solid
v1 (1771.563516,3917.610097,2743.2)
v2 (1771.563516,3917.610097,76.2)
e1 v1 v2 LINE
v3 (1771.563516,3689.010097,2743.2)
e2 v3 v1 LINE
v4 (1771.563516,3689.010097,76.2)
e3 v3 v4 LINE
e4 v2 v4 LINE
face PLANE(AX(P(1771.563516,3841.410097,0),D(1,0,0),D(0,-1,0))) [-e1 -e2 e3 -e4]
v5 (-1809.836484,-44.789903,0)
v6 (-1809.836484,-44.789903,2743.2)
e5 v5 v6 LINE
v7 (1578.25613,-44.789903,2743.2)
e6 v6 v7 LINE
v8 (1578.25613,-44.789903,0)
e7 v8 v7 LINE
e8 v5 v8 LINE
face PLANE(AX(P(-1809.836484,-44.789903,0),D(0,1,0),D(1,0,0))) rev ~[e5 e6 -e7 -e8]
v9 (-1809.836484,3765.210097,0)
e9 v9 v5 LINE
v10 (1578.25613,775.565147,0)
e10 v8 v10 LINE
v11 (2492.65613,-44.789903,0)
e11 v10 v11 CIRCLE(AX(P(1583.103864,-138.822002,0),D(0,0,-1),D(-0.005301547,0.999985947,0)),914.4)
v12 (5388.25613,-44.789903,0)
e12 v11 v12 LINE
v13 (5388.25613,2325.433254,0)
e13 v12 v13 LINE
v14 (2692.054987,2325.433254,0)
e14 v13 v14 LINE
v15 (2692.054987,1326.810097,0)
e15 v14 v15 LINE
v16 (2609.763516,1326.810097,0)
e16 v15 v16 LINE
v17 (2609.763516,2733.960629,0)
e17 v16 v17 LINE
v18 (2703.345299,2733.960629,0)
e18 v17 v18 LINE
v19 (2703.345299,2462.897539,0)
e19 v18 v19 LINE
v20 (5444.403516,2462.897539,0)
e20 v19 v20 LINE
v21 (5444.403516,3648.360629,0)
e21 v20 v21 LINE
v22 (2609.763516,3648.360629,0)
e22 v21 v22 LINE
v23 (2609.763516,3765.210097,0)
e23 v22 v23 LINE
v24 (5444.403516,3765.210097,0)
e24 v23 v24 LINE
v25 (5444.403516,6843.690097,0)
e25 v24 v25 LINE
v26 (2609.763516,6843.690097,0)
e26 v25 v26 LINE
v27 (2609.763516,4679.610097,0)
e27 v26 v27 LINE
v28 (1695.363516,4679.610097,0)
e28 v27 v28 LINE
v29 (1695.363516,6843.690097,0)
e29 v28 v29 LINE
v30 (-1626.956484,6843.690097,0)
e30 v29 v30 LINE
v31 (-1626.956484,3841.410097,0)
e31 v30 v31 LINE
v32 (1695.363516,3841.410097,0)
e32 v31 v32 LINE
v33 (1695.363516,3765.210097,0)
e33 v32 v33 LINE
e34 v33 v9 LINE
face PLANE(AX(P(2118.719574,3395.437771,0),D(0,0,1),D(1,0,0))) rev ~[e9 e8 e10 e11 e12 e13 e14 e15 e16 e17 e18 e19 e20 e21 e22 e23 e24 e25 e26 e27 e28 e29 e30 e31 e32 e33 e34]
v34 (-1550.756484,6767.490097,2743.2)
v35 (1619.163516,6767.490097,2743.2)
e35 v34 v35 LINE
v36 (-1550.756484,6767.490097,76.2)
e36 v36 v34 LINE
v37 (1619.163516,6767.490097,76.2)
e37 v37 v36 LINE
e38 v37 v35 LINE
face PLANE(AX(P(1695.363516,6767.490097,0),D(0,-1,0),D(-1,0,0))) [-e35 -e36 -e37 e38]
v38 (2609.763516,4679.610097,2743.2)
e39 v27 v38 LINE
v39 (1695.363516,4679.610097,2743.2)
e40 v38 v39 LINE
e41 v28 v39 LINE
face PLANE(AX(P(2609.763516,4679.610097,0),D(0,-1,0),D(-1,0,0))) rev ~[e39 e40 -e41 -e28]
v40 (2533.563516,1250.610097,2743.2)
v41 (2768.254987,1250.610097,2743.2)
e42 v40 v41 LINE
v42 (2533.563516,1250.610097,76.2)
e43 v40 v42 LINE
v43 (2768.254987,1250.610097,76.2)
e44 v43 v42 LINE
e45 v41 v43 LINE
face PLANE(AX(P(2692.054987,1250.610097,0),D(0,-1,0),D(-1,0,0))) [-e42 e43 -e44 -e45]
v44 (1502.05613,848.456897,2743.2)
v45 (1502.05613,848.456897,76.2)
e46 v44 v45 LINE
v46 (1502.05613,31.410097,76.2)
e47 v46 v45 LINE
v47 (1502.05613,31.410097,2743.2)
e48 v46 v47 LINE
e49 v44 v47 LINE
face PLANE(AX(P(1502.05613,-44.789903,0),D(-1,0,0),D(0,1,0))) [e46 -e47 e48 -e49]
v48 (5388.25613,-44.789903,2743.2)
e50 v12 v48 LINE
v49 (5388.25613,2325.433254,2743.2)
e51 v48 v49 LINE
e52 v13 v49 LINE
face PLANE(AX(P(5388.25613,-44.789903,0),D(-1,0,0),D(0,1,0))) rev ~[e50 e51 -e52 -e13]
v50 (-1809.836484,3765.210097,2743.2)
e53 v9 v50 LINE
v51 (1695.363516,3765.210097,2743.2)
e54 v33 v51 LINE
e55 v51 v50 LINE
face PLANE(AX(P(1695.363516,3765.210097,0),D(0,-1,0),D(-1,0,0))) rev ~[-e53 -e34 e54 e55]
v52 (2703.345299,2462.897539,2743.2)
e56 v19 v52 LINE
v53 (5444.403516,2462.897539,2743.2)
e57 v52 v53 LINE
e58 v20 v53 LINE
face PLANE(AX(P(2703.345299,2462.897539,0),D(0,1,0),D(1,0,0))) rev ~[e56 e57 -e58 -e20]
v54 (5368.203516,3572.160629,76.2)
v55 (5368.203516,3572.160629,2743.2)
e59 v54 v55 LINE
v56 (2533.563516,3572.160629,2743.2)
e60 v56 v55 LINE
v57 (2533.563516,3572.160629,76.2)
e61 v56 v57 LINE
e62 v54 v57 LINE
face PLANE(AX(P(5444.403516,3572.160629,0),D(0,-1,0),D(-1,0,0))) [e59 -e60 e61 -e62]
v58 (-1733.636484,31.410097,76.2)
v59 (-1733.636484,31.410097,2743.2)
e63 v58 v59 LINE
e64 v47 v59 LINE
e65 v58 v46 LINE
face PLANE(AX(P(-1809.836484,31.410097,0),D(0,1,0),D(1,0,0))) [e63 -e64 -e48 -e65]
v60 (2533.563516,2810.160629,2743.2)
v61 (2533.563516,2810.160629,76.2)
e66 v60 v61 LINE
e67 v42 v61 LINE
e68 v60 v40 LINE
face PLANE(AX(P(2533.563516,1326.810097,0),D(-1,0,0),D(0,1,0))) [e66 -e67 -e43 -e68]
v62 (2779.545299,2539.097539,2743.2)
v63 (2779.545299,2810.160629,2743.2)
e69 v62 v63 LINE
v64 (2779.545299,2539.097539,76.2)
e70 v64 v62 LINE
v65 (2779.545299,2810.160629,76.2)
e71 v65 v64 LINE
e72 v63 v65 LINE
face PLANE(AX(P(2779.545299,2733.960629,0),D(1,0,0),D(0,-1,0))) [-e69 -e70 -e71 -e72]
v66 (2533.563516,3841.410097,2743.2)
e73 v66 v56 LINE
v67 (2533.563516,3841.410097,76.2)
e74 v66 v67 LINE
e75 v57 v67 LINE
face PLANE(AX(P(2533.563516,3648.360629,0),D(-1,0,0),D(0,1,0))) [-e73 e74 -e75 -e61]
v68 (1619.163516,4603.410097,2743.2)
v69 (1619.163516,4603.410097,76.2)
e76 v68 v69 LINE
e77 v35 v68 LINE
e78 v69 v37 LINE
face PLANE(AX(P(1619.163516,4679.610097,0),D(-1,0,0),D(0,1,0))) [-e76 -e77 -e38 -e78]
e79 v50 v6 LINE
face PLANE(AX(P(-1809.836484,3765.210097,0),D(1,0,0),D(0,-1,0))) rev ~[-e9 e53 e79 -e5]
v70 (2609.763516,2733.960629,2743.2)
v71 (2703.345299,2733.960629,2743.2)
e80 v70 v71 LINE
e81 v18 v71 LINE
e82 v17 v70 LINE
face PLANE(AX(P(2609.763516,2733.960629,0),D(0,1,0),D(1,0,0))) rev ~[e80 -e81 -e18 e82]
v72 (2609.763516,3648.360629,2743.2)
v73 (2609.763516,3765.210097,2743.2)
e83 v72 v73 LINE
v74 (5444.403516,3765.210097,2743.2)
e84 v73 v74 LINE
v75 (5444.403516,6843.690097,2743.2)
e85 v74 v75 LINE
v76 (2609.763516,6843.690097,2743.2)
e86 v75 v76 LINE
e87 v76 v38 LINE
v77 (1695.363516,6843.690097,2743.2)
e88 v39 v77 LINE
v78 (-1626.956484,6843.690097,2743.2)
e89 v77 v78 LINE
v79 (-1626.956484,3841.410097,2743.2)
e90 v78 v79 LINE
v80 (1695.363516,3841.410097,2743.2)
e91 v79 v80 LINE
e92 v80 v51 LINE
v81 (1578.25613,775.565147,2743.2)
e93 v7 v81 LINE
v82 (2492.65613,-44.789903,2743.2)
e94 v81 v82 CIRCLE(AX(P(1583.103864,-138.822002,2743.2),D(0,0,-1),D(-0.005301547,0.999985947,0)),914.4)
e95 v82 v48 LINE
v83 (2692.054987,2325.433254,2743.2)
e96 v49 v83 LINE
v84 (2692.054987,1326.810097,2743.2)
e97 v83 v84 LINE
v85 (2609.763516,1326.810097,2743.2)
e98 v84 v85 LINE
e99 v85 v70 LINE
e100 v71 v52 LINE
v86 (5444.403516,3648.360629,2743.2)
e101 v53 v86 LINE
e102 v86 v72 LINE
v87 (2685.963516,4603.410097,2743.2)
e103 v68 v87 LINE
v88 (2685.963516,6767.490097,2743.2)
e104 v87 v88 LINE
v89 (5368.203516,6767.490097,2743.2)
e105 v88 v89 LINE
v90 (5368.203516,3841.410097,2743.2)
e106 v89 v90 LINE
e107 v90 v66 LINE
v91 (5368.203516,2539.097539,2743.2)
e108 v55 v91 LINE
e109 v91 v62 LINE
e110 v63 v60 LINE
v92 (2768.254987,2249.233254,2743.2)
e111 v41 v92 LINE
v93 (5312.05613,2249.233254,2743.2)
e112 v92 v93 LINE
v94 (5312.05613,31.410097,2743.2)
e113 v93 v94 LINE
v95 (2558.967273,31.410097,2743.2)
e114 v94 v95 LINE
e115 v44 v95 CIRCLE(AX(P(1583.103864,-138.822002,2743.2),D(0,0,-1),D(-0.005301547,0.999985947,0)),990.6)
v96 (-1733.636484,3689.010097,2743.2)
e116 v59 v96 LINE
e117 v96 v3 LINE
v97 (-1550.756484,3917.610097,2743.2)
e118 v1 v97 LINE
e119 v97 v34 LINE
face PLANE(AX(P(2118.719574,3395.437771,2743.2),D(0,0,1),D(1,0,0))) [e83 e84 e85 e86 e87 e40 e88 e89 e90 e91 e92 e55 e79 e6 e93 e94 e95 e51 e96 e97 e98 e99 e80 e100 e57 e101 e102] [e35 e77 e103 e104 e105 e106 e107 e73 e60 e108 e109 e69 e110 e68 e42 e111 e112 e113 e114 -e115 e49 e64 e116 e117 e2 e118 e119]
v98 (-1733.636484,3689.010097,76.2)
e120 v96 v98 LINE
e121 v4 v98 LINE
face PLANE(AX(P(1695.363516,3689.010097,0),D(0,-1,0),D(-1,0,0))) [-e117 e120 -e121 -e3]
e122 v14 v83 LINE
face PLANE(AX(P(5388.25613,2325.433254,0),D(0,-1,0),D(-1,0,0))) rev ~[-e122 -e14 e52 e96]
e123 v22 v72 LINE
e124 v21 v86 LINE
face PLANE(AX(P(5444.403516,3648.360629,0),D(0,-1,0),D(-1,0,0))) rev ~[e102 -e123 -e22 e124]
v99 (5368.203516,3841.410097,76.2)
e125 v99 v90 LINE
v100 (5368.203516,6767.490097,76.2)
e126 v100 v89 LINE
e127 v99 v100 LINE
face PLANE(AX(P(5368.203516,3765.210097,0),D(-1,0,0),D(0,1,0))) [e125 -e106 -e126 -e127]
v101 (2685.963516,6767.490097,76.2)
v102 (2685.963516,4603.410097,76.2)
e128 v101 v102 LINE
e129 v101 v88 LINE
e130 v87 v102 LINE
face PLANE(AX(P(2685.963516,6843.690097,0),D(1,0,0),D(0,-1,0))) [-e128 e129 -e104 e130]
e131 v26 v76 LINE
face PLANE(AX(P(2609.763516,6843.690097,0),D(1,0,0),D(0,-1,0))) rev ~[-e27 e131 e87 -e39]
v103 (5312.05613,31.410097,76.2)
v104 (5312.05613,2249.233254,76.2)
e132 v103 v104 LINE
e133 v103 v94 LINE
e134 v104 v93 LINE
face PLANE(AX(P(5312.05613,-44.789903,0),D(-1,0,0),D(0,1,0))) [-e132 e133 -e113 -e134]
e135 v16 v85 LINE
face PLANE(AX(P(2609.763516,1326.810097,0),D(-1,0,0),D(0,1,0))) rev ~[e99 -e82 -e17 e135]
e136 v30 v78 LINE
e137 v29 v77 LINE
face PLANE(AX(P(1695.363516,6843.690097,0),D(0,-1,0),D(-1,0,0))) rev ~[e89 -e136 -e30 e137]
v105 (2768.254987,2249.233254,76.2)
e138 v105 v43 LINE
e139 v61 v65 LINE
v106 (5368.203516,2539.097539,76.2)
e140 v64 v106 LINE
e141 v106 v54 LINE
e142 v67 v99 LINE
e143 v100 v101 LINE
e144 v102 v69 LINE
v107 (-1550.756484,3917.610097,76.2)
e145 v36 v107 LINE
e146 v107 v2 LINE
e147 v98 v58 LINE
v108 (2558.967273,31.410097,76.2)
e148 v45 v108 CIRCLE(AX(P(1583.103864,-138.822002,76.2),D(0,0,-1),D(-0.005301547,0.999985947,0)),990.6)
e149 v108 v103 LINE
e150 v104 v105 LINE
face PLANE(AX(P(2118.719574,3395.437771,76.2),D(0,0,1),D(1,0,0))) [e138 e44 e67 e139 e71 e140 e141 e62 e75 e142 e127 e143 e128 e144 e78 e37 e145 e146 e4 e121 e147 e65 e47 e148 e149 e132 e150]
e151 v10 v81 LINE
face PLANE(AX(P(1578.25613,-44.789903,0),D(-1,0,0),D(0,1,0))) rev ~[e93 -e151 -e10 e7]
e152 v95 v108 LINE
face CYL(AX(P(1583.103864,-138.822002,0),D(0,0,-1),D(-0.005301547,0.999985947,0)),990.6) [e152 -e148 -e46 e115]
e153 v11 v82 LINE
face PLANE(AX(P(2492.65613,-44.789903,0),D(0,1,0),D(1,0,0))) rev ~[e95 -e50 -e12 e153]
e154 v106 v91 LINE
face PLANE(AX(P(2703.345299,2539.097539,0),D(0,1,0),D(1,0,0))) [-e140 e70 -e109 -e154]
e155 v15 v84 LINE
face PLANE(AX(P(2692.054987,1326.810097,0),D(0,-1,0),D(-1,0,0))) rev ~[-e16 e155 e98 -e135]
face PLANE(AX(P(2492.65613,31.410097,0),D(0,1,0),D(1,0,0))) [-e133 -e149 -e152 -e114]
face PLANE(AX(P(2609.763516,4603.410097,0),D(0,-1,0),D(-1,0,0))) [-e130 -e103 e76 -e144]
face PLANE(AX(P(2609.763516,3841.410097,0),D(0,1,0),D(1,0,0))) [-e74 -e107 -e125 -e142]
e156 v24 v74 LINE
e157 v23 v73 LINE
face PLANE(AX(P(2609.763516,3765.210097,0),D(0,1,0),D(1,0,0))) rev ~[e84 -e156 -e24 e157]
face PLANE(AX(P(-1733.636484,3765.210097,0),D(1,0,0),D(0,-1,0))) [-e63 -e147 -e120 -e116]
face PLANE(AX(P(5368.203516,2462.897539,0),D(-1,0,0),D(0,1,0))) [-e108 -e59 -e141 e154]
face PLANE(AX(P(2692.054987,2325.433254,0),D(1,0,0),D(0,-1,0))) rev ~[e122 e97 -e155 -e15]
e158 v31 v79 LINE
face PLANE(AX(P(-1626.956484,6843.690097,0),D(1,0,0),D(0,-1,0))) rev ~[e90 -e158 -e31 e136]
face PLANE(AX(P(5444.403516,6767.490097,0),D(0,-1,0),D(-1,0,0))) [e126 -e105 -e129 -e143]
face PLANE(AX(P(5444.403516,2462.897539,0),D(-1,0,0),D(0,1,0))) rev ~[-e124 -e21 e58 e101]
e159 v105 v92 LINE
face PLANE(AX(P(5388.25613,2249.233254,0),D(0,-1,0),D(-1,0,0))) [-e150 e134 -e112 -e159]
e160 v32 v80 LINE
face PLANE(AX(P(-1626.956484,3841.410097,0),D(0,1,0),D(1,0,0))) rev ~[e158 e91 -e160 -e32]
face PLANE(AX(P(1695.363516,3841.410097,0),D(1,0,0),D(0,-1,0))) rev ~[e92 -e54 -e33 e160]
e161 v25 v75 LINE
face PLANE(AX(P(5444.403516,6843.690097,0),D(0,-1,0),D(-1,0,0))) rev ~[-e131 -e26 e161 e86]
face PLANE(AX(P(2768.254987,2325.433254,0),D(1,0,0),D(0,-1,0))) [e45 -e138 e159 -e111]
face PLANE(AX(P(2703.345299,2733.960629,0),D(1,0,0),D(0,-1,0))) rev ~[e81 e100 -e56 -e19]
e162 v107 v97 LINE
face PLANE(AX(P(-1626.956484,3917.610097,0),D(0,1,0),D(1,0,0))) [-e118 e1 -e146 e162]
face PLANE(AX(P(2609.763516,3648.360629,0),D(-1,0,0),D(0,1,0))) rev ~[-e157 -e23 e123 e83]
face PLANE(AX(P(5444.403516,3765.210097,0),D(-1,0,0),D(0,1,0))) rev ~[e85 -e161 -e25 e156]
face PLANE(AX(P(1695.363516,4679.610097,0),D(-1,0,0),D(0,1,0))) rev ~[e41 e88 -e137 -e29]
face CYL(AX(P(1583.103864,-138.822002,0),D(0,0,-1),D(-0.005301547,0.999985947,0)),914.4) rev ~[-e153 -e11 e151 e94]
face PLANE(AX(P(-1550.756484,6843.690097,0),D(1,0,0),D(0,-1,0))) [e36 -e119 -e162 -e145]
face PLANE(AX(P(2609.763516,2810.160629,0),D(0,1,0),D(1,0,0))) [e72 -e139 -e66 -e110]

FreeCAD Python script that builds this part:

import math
import FreeCAD as App
import Part
import Sketcher
Q = App.Units.Quantity


def faces_at(feature, points):
    """Names of the faces that lie closest to the given points."""
    faces = feature.Shape.Faces
    near = lambda p: min(range(len(faces)), key=lambda i: faces[i].distToShape(Part.Vertex(*p))[0])
    return sorted({f"Face{near(p) + 1}" for p in points})

doc = App.newDocument("Part")
body = doc.addObject("PartDesign::Body", "Body")

# Sketch on XY plane
sketch1 = body.newObject("Sketcher::SketchObject", "Sketch")
sketch1.AttachmentSupport = (doc.getObject("XY_Plane"), [""])
sketch1.MapMode = "FlatFace"
sketch1.addGeometry([
    Part.LineSegment(App.Vector(-1810, 3765, 0), App.Vector(-1810, -45, 0)),  # 0
    Part.LineSegment(App.Vector(-1810, -45, 0), App.Vector(1578, -45, 0)),  # 1
    Part.LineSegment(App.Vector(1578, -45, 0), App.Vector(1578, 776, 0)),  # 2
    Part.ArcOfCircle(Part.Circle(App.Vector(1583, -139, 0), App.Vector(0, 0, 1), 914), math.radians(6), math.radians(90)),  # 3
    Part.LineSegment(App.Vector(2493, -45, 0), App.Vector(5388, -45, 0)),  # 4
    Part.LineSegment(App.Vector(5388, -45, 0), App.Vector(5388, 2325, 0)),  # 5
    Part.LineSegment(App.Vector(5388, 2325, 0), App.Vector(2692, 2325, 0)),  # 6
    Part.LineSegment(App.Vector(2692, 2325, 0), App.Vector(2692, 1327, 0)),  # 7
    Part.LineSegment(App.Vector(2692, 1327, 0), App.Vector(2610, 1327, 0)),  # 8
    Part.LineSegment(App.Vector(2610, 1327, 0), App.Vector(2610, 2734, 0)),  # 9
    Part.LineSegment(App.Vector(2610, 2734, 0), App.Vector(2703, 2734, 0)),  # 10
    Part.LineSegment(App.Vector(2703, 2734, 0), App.Vector(2703, 2463, 0)),  # 11
    Part.LineSegment(App.Vector(2703, 2463, 0), App.Vector(5444, 2463, 0)),  # 12
    Part.LineSegment(App.Vector(5444, 2463, 0), App.Vector(5444, 3648, 0)),  # 13
    Part.LineSegment(App.Vector(5444, 3648, 0), App.Vector(2610, 3648, 0)),  # 14
    Part.LineSegment(App.Vector(2610, 3648, 0), App.Vector(2610, 3765, 0)),  # 15
    Part.LineSegment(App.Vector(2610, 3765, 0), App.Vector(5444, 3765, 0)),  # 16
    Part.LineSegment(App.Vector(5444, 3765, 0), App.Vector(5444, 6844, 0)),  # 17
    Part.LineSegment(App.Vector(5444, 6844, 0), App.Vector(2610, 6844, 0)),  # 18
    Part.LineSegment(App.Vector(2610, 6844, 0), App.Vector(2610, 4680, 0)),  # 19
    Part.LineSegment(App.Vector(2610, 4680, 0), App.Vector(1695, 4680, 0)),  # 20
    Part.LineSegment(App.Vector(1695, 4680, 0), App.Vector(1695, 6844, 0)),  # 21
    Part.LineSegment(App.Vector(1695, 6844, 0), App.Vector(-1627, 6844, 0)),  # 22
    Part.LineSegment(App.Vector(-1627, 6844, 0), App.Vector(-1627, 3841, 0)),  # 23
    Part.LineSegment(App.Vector(-1627, 3841, 0), App.Vector(1695, 3841, 0)),  # 24
    Part.LineSegment(App.Vector(1695, 3841, 0), App.Vector(1695, 3765, 0)),  # 25
    Part.LineSegment(App.Vector(1695, 3765, 0), App.Vector(-1810, 3765, 0)),  # 26
], False)
sketch1.addConstraint([
    Sketcher.Constraint("Coincident", 0, 2, 1, 1),
    Sketcher.Constraint("Coincident", 1, 2, 2, 1),
    Sketcher.Constraint("Coincident", 2, 2, 3, 2),
    Sketcher.Constraint("Coincident", 3, 1, 4, 1),
    Sketcher.Constraint("Coincident", 4, 2, 5, 1),
    Sketcher.Constraint("Coincident", 5, 2, 6, 1),
    Sketcher.Constraint("Coincident", 6, 2, 7, 1),
    Sketcher.Constraint("Coincident", 7, 2, 8, 1),
    Sketcher.Constraint("Coincident", 8, 2, 9, 1),
    Sketcher.Constraint("Coincident", 9, 2, 10, 1),
    Sketcher.Constraint("Coincident", 10, 2, 11, 1),
    Sketcher.Constraint("Coincident", 11, 2, 12, 1),
    Sketcher.Constraint("Coincident", 12, 2, 13, 1),
    Sketcher.Constraint("Coincident", 13, 2, 14, 1),
    Sketcher.Constraint("Coincident", 14, 2, 15, 1),
    Sketcher.Constraint("Coincident", 15, 2, 16, 1),
    Sketcher.Constraint("Coincident", 16, 2, 17, 1),
    Sketcher.Constraint("Coincident", 17, 2, 18, 1),
    Sketcher.Constraint("Coincident", 18, 2, 19, 1),
    Sketcher.Constraint("Coincident", 19, 2, 20, 1),
    Sketcher.Constraint("Coincident", 20, 2, 21, 1),
    Sketcher.Constraint("Coincident", 21, 2, 22, 1),
    Sketcher.Constraint("Coincident", 22, 2, 23, 1),
    Sketcher.Constraint("Coincident", 23, 2, 24, 1),
    Sketcher.Constraint("Coincident", 24, 2, 25, 1),
    Sketcher.Constraint("Coincident", 25, 2, 26, 1),
    Sketcher.Constraint("Coincident", 26, 2, 0, 1),
    Sketcher.Constraint("Vertical", 0),
    Sketcher.Constraint("Horizontal", 1),
    Sketcher.Constraint("Vertical", 2),
    Sketcher.Constraint("Horizontal", 4),
    Sketcher.Constraint("Vertical", 5),
    Sketcher.Constraint("Horizontal", 6),
    Sketcher.Constraint("Vertical", 7),
    Sketcher.Constraint("Horizontal", 8),
    Sketcher.Constraint("Vertical", 9),
    Sketcher.Constraint("Horizontal", 10),
    Sketcher.Constraint("Vertical", 11),
    Sketcher.Constraint("Horizontal", 12),
    Sketcher.Constraint("Vertical", 13),
    Sketcher.Constraint("Horizontal", 14),
    Sketcher.Constraint("Vertical", 15),
    Sketcher.Constraint("Horizontal", 16),
    Sketcher.Constraint("Vertical", 17),
    Sketcher.Constraint("Horizontal", 18),
    Sketcher.Constraint("Vertical", 19),
    Sketcher.Constraint("Horizontal", 20),
    Sketcher.Constraint("Vertical", 21),
    Sketcher.Constraint("Horizontal", 22),
    Sketcher.Constraint("Vertical", 23),
    Sketcher.Constraint("Horizontal", 24),
    Sketcher.Constraint("Vertical", 25),
    Sketcher.Constraint("Horizontal", 26),
    Sketcher.Constraint("Horizontal", 18, 2, 21, 2),
    Sketcher.Constraint("Horizontal", 16, 2, 25, 2),
    Sketcher.Constraint("Vertical", 9, 2, 14, 2),
    Sketcher.Constraint("Vertical", 13, 2, 16, 2),
    Sketcher.Constraint("Vertical", 15, 2, 18, 2),
    Sketcher.Constraint("Vertical", 21, 2, 24, 2),
    Sketcher.Constraint("Radius", 3, Q("36 in")),
    Sketcher.Constraint("DistanceX", 4, 1, 4, 2, Q("114 in")),
    Sketcher.Constraint("DistanceX", 20, 2, 20, 1, Q("36 in")),
    Sketcher.Constraint("DistanceX", 26, 2, 26, 1, Q("138 in")),
    Sketcher.Constraint("DistanceY", 0, 2, 0, 1, Q("150 in")),
    Sketcher.Constraint("DistanceY", 25, 2, 25, 1, Q("3 in")),
    Sketcher.Constraint("DistanceX", 14, 2, 14, 1, Q("111.6 in")),
    Sketcher.Constraint("DistanceX", 22, 2, 22, 1, Q("130.8 in")),
    Sketcher.Constraint("DistanceY", 17, 1, 17, 2, Q("121.2 in")),
    Sketcher.Constraint("DistanceY", 19, 2, 19, 1, Q("85.2 in")),
    Sketcher.Constraint("DistanceX", 1, 2, 3, 1, Q("36 in")),
    Sketcher.Constraint("DistanceY", 1, 2, 7, 2, Q("54 in")),
    Sketcher.Constraint("DistanceY", 10, 2, 13, 2, Q("36 in")),
    Sketcher.Constraint("DistanceX", 8, 2, 8, 1, 82.291471),
    Sketcher.Constraint("DistanceY", 2, 1, 2, 2, 820.35505),
    Sketcher.Constraint("DistanceY", 9, 1, 9, 2, 1407.150531),
    Sketcher.Constraint("DistanceY", 11, 2, 11, 1, 271.063089),
    Sketcher.Constraint("DistanceX", -1, 1, 10, 2, 2703.345299),
    Sketcher.Constraint("DistanceY", 3, 3, 4, 2, 94.032099),
    Sketcher.Constraint("DistanceX", 1, 1, 1, 2, 3388.092614),
    Sketcher.Constraint("DistanceX", 10, 1, 10, 2, 93.581782),
    Sketcher.Constraint("DistanceY", 5, 1, 5, 2, 2370.223157),
    Sketcher.Constraint("DistanceY", -1, 1, 9, 2, 2733.960629),
])
pad1 = body.newObject("PartDesign::Pad", "Pad")
pad1.Profile = sketch1
pad1.Length = Q("108 in")
doc.recompute()

thickness = body.newObject("PartDesign::Thickness", "Thickness")
thickness.Base = (pad1, faces_at(pad1, [(1817.284, 3399.45, 2743.2)]))
thickness.Value = Q("3 in")
thickness.Reversed = True
thickness.Join = "Intersection"

doc.recompute()
